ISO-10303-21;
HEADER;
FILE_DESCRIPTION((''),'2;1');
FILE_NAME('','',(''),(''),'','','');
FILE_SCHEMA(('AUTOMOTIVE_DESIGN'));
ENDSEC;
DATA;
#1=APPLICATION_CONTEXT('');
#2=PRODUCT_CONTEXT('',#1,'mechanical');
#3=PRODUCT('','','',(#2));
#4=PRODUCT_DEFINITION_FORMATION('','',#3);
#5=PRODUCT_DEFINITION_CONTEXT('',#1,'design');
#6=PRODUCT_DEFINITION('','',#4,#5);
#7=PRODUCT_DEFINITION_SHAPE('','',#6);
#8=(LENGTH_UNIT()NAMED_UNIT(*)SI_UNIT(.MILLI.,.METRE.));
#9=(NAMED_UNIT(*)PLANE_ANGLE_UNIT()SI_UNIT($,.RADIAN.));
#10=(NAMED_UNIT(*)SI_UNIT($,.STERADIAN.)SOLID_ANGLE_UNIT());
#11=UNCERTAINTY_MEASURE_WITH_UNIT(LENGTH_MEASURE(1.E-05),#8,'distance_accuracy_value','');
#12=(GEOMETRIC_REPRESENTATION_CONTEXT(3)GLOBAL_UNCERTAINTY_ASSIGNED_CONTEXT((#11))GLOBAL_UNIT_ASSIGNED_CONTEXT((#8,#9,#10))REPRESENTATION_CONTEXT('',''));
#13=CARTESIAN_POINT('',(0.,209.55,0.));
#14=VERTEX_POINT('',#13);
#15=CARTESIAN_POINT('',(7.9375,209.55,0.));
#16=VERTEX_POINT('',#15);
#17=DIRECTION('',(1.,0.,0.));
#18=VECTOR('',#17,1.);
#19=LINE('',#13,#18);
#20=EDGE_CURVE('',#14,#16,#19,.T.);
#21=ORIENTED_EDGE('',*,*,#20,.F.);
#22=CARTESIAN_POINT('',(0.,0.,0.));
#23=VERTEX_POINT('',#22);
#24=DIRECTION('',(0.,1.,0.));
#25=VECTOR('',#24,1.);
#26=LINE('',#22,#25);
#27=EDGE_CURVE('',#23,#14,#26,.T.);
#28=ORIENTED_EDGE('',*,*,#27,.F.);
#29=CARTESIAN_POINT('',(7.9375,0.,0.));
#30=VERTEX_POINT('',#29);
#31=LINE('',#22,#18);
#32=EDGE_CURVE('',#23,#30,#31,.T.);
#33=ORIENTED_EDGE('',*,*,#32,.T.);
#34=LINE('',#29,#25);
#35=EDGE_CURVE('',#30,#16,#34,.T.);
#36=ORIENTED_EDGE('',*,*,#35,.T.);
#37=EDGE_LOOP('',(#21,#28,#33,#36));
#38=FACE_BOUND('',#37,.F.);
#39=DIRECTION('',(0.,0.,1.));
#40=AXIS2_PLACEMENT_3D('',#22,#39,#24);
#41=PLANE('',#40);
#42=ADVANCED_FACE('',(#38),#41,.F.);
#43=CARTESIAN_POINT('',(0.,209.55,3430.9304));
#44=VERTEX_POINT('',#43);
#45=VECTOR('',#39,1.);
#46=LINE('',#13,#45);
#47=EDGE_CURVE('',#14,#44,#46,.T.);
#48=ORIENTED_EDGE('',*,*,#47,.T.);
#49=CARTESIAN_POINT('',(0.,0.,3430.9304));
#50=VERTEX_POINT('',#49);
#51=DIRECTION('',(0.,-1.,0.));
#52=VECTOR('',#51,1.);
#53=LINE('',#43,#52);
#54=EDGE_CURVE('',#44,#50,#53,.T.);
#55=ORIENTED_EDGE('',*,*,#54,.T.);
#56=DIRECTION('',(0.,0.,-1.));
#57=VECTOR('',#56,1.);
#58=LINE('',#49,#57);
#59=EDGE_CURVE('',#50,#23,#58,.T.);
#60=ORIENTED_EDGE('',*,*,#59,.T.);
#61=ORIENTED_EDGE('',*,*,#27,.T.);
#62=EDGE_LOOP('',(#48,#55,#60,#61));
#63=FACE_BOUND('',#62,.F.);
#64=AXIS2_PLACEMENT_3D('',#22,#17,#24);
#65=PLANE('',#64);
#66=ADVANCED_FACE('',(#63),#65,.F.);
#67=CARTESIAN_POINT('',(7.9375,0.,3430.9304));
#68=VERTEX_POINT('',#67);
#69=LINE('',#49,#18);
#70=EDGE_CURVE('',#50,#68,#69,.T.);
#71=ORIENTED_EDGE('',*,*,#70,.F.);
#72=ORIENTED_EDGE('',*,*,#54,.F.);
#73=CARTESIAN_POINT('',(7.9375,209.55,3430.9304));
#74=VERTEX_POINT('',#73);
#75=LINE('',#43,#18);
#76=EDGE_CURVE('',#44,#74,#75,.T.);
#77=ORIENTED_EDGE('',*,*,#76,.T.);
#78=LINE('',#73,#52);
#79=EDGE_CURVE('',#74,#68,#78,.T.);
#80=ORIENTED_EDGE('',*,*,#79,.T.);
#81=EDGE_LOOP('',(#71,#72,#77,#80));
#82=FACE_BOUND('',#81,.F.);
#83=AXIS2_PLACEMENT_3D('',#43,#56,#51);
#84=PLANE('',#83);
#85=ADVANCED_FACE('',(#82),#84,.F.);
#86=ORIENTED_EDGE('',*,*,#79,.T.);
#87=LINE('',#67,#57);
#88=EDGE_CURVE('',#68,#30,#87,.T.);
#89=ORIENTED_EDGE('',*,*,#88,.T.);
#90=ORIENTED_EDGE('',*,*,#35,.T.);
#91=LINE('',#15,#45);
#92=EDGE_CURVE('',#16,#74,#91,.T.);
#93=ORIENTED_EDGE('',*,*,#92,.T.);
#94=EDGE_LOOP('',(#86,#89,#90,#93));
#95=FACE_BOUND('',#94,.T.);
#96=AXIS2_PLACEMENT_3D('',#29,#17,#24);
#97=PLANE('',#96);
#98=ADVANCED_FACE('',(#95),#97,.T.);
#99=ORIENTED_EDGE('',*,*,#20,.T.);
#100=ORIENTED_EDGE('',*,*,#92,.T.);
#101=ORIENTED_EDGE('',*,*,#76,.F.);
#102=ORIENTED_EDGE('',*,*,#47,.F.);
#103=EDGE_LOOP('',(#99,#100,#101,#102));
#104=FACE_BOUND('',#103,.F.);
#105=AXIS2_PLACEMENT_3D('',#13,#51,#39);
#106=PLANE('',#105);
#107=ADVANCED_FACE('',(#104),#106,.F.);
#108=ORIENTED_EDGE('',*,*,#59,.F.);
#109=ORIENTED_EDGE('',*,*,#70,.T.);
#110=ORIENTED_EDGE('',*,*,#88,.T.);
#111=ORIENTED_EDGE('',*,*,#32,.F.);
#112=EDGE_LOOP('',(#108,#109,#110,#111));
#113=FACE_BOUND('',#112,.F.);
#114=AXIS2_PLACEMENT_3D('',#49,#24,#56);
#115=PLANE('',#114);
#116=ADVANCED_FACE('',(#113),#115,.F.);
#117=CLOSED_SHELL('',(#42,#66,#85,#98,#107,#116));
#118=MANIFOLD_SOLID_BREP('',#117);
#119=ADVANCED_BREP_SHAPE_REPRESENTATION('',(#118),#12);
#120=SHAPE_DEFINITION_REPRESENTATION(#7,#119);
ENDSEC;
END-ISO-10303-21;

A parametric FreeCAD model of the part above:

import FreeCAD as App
import Part
import Sketcher
Q = App.Units.Quantity


def add_polygon(sketch, points):
    """Adds a closed chain of lines whose ends are joined by coincident constraints."""
    first, n = sketch.GeometryCount, len(points)
    for a, b in zip(points, points[1:] + points[:1]):
        sketch.addGeometry(Part.LineSegment(App.Vector(*a, 0), App.Vector(*b, 0)), False)
    for i in range(n):
        sketch.addConstraint(Sketcher.Constraint("Coincident", first + i, 2, first + (i + 1) % n, 1))

doc = App.newDocument("Part")
body = doc.addObject("PartDesign::Body", "Body")

sketch1 = body.newObject("Sketcher::SketchObject", "Sketch")
sketch1.AttachmentSupport = (doc.getObject("YZ_Plane"), [""])
sketch1.MapMode = "FlatFace"
add_polygon(sketch1, [(0, 3431), (0, 0), (210, 0), (210, 3431)])
sketch1.addConstraint(Sketcher.Constraint("Vertical", 0))
sketch1.addConstraint(Sketcher.Constraint("Horizontal", 1))
sketch1.addConstraint(Sketcher.Constraint("Vertical", 2))
sketch1.addConstraint(Sketcher.Constraint("Horizontal", 3))
sketch1.addConstraint(Sketcher.Constraint("Coincident", 0, 2, -1, 1))
sketch1.addConstraint(Sketcher.Constraint("DistanceX", 1, 1, 1, 2, Q("8.25 in")))
sketch1.addConstraint(Sketcher.Constraint("DistanceY", 0, 2, 0, 1, Q("135.076 in")))
pad1 = body.newObject("PartDesign::Pad", "Pad")
pad1.Profile = sketch1
pad1.Length = Q("0.3125 in")

doc.recompute()
